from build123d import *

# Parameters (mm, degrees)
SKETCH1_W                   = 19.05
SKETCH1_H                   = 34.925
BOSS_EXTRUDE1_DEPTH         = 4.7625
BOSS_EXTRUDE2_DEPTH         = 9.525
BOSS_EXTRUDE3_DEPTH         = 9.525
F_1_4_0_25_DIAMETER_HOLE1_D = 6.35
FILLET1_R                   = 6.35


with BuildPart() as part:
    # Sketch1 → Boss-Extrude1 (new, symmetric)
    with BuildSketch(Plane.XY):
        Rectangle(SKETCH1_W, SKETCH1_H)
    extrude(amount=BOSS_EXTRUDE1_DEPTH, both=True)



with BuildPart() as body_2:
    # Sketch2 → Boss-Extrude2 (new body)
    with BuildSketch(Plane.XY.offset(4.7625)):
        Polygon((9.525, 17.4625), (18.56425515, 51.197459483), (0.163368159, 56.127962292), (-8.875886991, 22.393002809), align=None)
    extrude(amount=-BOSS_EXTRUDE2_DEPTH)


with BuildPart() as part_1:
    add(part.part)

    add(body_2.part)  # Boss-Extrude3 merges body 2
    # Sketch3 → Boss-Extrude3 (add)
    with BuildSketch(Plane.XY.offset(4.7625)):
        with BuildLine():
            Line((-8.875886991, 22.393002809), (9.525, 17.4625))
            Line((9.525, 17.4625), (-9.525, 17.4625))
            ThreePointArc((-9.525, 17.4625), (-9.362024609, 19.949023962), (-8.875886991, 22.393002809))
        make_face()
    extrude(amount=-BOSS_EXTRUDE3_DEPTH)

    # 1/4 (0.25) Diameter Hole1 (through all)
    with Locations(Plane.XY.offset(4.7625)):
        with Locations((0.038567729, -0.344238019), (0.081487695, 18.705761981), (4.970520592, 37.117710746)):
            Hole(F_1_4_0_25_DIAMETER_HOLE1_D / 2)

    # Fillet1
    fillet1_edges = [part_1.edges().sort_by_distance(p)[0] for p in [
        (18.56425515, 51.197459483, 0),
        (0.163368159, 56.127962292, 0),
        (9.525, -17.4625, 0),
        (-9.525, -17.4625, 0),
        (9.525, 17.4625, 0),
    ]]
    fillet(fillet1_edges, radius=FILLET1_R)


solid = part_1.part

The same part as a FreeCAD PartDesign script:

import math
import FreeCAD as App
import Part
import Sketcher
Q = App.Units.Quantity


def edges_at(feature, points):
    """Names of the edges that pass closest to the given points."""
    edges = feature.Shape.Edges
    near = lambda p: min(range(len(edges)), key=lambda i: edges[i].distToShape(Part.Vertex(*p))[0])
    return sorted({f"Edge{near(p) + 1}" for p in points})


def add_polygon(sketch, points):
    """Adds a closed chain of lines whose ends are joined by coincident constraints."""
    first, n = sketch.GeometryCount, len(points)
    for a, b in zip(points, points[1:] + points[:1]):
        sketch.addGeometry(Part.LineSegment(App.Vector(*a, 0), App.Vector(*b, 0)), False)
    for i in range(n):
        sketch.addConstraint(Sketcher.Constraint("Coincident", first + i, 2, first + (i + 1) % n, 1))

doc = App.newDocument("Part")
body = doc.addObject("PartDesign::Body", "Body")

sketch1 = body.newObject("Sketcher::SketchObject", "Sketch")
sketch1.AttachmentSupport = (doc.getObject("XY_Plane"), [""])
sketch1.MapMode = "FlatFace"
add_polygon(sketch1, [(-10, 17), (-10, -17), (10, -17), (10, 17)])
sketch1.addConstraint([
    Sketcher.Constraint("Vertical", 0),
    Sketcher.Constraint("Horizontal", 1),
    Sketcher.Constraint("Vertical", 2),
    Sketcher.Constraint("Horizontal", 3),
    Sketcher.Constraint("Symmetric", 0, 2, 2, 2, -1, 1),
    Sketcher.Constraint("DistanceX", 1, 1, 1, 2, Q("0.75 in")),
    Sketcher.Constraint("DistanceY", 0, 2, 0, 1, Q("1.375 in")),
])
pad1 = body.newObject("PartDesign::Pad", "Pad")
pad1.Profile = sketch1
pad1.Length = Q("0.375 in")
pad1.Midplane = True
body2 = doc.addObject("PartDesign::Body", "Body001")

sketch2 = body2.newObject("Sketcher::SketchObject", "Sketch001")
sketch2.AttachmentSupport = (doc.getObject("XY_Plane001"), [""])
sketch2.MapMode = "FlatFace"
sketch2.AttachmentOffset = App.Placement(App.Vector(0, 0, 0.1875 * 25.4), App.Rotation())
add_polygon(sketch2, [(10, 17), (19, 51), (0, 56), (-9, 22)])
sketch2.addConstraint([
    Sketcher.Constraint("Perpendicular", 0, 1),
    Sketcher.Constraint("Perpendicular", 1, 2),
    Sketcher.Constraint("Perpendicular", 2, 3),
    Sketcher.Constraint("Angle", 0, Q("75 deg")),
    Sketcher.Constraint("Distance", 1, Q("0.75 in")),
    Sketcher.Constraint("Distance", 0, Q("1.375 in")),
    Sketcher.Constraint("DistanceX", -1, 1, 3, 2, Q("0.375 in")),
    Sketcher.Constraint("DistanceY", -1, 1, 3, 2, Q("0.6875 in")),
])
pad2 = body2.newObject("PartDesign::Pad", "Pad001")
pad2.Profile = sketch2
pad2.Length = Q("0.375 in")
pad2.Reversed = True
body.AllowCompound = True
doc.recompute()

boolean = body.newObject("PartDesign::Boolean", "Boolean")
boolean.Type = "Fuse"
boolean.addObjects([body2])

sketch3 = body.newObject("Sketcher::SketchObject", "Sketch002")
sketch3.AttachmentSupport = (doc.getObject("XY_Plane"), [""])
sketch3.MapMode = "FlatFace"
sketch3.AttachmentOffset = App.Placement(App.Vector(0, 0, 0.1875 * 25.4), App.Rotation())
sketch3.addGeometry([
    Part.LineSegment(App.Vector(9.5, 17.5, 0), App.Vector(-8.9, 22.4, 0)),
    Part.ArcOfCircle(Part.Circle(App.Vector(9.5, 17.5, 0), App.Vector(0, 0, 1), 19.1), math.radians(165), math.radians(180)),
    Part.LineSegment(App.Vector(-9.5, 17.5, 0), App.Vector(9.5, 17.5, 0)),
], False)
sketch3.addConstraint([
    Sketcher.Constraint("Coincident", 0, 2, 1, 1),
    Sketcher.Constraint("Coincident", 1, 2, 2, 1),
    Sketcher.Constraint("Coincident", 2, 2, 0, 1),
    Sketcher.Constraint("Horizontal", 2),
    Sketcher.Constraint("Coincident", 2, 2, 1, 3),
    Sketcher.Constraint("Radius", 1, Q("0.75 in")),
    Sketcher.Constraint("Angle", 0, Q("165 deg")),
    Sketcher.Constraint("DistanceX", -1, 1, 1, 3, Q("0.375 in")),
    Sketcher.Constraint("DistanceY", -1, 1, 1, 3, Q("0.6875 in")),
])
pad3 = body.newObject("PartDesign::Pad", "Pad002")
pad3.Profile = sketch3
pad3.Length = Q("0.375 in")
pad3.Reversed = True

sketch4 = body.newObject("Sketcher::SketchObject", "Sketch003")
sketch4.AttachmentSupport = (doc.getObject("XY_Plane"), [""])
sketch4.MapMode = "FlatFace"
sketch4.AttachmentOffset = App.Placement(App.Vector(0, 0, 0.1875 * 25.4), App.Rotation())
sketch4.addGeometry([
    Part.Circle(App.Vector(0, -0.3, 0), App.Vector(0, 0, 1), 3.2),
    Part.Circle(App.Vector(0.1, 18.7, 0), App.Vector(0, 0, 1), 3.2),
    Part.Circle(App.Vector(5, 37.1, 0), App.Vector(0, 0, 1), 3.2),
], False)
sketch4.addConstraint([
    Sketcher.Constraint("Equal", 0, 1),
    Sketcher.Constraint("Equal", 1, 2),
    Sketcher.Constraint("Diameter", 0, Q("0.25 in")),
    Sketcher.Constraint("DistanceY", 0, 3, 1, 3, Q("0.75 in")),
    Sketcher.Constraint("DistanceY", 0, 3, -1, 1, 0.344238),
    Sketcher.Constraint("DistanceX", -1, 1, 2, 3, 4.970521),
    Sketcher.Constraint("DistanceY", -1, 1, 2, 3, 37.117711),
    Sketcher.Constraint("DistanceX", 0, 3, 1, 3, 0.04292),
    Sketcher.Constraint("DistanceX", -1, 1, 0, 3, 0.038568),
])
doc.recompute()
hole = body.newObject("PartDesign::Hole", "Hole")
hole.Profile = sketch4
hole.ThreadType = "None"
hole.Diameter = Q("0.25 in")
hole.DepthType = "ThroughAll"
doc.recompute()

fillet = body.newObject("PartDesign::Fillet", "Fillet")
fillet.Base = (hole, edges_at(hole, [
    (18.564, 51.197, 0),
    (0.163, 56.128, 0),
    (9.525, -17.462, 0),
    (-9.525, -17.462, 0),
    (9.525, 17.462, 0),
]))
fillet.Radius = Q("0.25 in")

doc.recompute()
